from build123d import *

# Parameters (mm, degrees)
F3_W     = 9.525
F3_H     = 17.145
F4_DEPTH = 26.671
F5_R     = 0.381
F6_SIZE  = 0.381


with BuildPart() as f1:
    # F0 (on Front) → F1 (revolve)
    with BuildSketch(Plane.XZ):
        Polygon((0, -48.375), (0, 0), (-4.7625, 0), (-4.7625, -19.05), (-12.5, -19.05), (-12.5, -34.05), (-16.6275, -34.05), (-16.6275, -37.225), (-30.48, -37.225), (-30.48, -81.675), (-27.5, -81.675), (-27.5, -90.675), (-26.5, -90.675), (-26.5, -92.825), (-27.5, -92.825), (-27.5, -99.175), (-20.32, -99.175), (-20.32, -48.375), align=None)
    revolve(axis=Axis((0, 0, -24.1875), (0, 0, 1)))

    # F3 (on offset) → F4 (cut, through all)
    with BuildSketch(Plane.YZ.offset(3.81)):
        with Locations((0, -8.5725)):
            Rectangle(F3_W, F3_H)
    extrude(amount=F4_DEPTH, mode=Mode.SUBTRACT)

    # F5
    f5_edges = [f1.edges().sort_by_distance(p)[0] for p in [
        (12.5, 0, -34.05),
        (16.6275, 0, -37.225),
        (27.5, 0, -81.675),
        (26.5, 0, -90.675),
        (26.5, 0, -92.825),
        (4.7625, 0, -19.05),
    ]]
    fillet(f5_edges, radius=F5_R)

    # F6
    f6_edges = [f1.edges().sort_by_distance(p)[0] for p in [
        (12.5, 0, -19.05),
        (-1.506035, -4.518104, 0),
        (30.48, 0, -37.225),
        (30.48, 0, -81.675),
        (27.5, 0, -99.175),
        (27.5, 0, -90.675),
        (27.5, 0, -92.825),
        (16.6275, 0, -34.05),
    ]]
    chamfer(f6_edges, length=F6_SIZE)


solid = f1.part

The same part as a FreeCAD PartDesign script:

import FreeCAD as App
import Part
import Sketcher
Q = App.Units.Quantity


def edges_at(feature, points):
    """Names of the edges that pass closest to the given points."""
    edges = feature.Shape.Edges
    near = lambda p: min(range(len(edges)), key=lambda i: edges[i].distToShape(Part.Vertex(*p))[0])
    return sorted({f"Edge{near(p) + 1}" for p in points})

doc = App.newDocument("Part")
body = doc.addObject("PartDesign::Body", "Body")

sketch1 = body.newObject("Sketcher::SketchObject", "Sketch")
sketch1.AttachmentSupport = (doc.getObject("XZ_Plane"), [""])
sketch1.MapMode = "FlatFace"
sketch1.addGeometry([
    Part.LineSegment(App.Vector(0, -48.375, 0), App.Vector(0, 0, 0)),
    Part.LineSegment(App.Vector(0, 0, 0), App.Vector(-4.7625, 0, 0)),
    Part.LineSegment(App.Vector(-4.7625, 0, 0), App.Vector(-4.7625, -19.05, 0)),
    Part.LineSegment(App.Vector(-4.7625, -19.05, 0), App.Vector(-12.5, -19.05, 0)),
    Part.LineSegment(App.Vector(-12.5, -19.05, 0), App.Vector(-12.5, -34.05, 0)),
    Part.LineSegment(App.Vector(-12.5, -34.05, 0), App.Vector(-16.6275, -34.05, 0)),
    Part.LineSegment(App.Vector(-16.6275, -34.05, 0), App.Vector(-16.6275, -37.225, 0)),
    Part.LineSegment(App.Vector(-16.6275, -37.225, 0), App.Vector(-30.48, -37.225, 0)),
    Part.LineSegment(App.Vector(-30.48, -37.225, 0), App.Vector(-30.48, -81.675, 0)),
    Part.LineSegment(App.Vector(-30.48, -81.675, 0), App.Vector(-27.5, -81.675, 0)),
    Part.LineSegment(App.Vector(-27.5, -81.675, 0), App.Vector(-27.5, -90.675, 0)),
    Part.LineSegment(App.Vector(-27.5, -90.675, 0), App.Vector(-26.5, -90.675, 0)),
    Part.LineSegment(App.Vector(-26.5, -90.675, 0), App.Vector(-26.5, -92.825, 0)),
    Part.LineSegment(App.Vector(-26.5, -92.825, 0), App.Vector(-27.5, -92.825, 0)),
    Part.LineSegment(App.Vector(-27.5, -92.825, 0), App.Vector(-27.5, -99.175, 0)),
    Part.LineSegment(App.Vector(-27.5, -99.175, 0), App.Vector(-20.32, -99.175, 0)),
    Part.LineSegment(App.Vector(-20.32, -99.175, 0), App.Vector(-20.32, -48.375, 0)),
    Part.LineSegment(App.Vector(-20.32, -48.375, 0), App.Vector(0, -48.375, 0)),
], False)
sketch1.addConstraint([
    Sketcher.Constraint("Coincident", 0, 2, 1, 1),
    Sketcher.Constraint("Coincident", 1, 2, 2, 1),
    Sketcher.Constraint("Coincident", 2, 2, 3, 1),
    Sketcher.Constraint("Coincident", 3, 2, 4, 1),
    Sketcher.Constraint("Coincident", 4, 2, 5, 1),
    Sketcher.Constraint("Coincident", 5, 2, 6, 1),
    Sketcher.Constraint("Coincident", 6, 2, 7, 1),
    Sketcher.Constraint("Coincident", 7, 2, 8, 1),
    Sketcher.Constraint("Coincident", 8, 2, 9, 1),
    Sketcher.Constraint("Coincident", 9, 2, 10, 1),
    Sketcher.Constraint("Coincident", 10, 2, 11, 1),
    Sketcher.Constraint("Coincident", 11, 2, 12, 1),
    Sketcher.Constraint("Coincident", 12, 2, 13, 1),
    Sketcher.Constraint("Coincident", 13, 2, 14, 1),
    Sketcher.Constraint("Coincident", 14, 2, 15, 1),
    Sketcher.Constraint("Coincident", 15, 2, 16, 1),
    Sketcher.Constraint("Coincident", 16, 2, 17, 1),
    Sketcher.Constraint("Coincident", 17, 2, 0, 1),
    Sketcher.Constraint("Vertical", 0),
    Sketcher.Constraint("Horizontal", 1),
    Sketcher.Constraint("Vertical", 2),
    Sketcher.Constraint("Horizontal", 3),
    Sketcher.Constraint("Vertical", 4),
    Sketcher.Constraint("Horizontal", 5),
    Sketcher.Constraint("Vertical", 6),
    Sketcher.Constraint("Horizontal", 7),
    Sketcher.Constraint("Vertical", 8),
    Sketcher.Constraint("Horizontal", 9),
    Sketcher.Constraint("Vertical", 10),
    Sketcher.Constraint("Horizontal", 11),
    Sketcher.Constraint("Vertical", 12),
    Sketcher.Constraint("Horizontal", 13),
    Sketcher.Constraint("Vertical", 14),
    Sketcher.Constraint("Horizontal", 15),
    Sketcher.Constraint("Vertical", 16),
    Sketcher.Constraint("Horizontal", 17),
    Sketcher.Constraint("Coincident", 0, 2, -1, 1),
    Sketcher.Constraint("Vertical", 10, 2, 13, 2),
    Sketcher.Constraint("DistanceY", 16, 1, 16, 2, Q("2 in")),
    Sketcher.Constraint("DistanceX", 17, 1, 17, 2, Q("0.8 in")),
    Sketcher.Constraint("DistanceY", 2, 2, 2, 1, Q("0.75 in")),
    Sketcher.Constraint("DistanceY", 8, 2, 8, 1, Q("1.75 in")),
    Sketcher.Constraint("DistanceY", 14, 2, 14, 1, Q("0.25 in")),
    Sketcher.Constraint("DistanceX", 7, 2, -1, 1, Q("1.2 in")),
    Sketcher.Constraint("DistanceX", 1, 2, 1, 1, Q("0.1875 in")),
    Sketcher.Constraint("DistanceY", 6, 2, 6, 1, Q("0.125 in")),
    Sketcher.Constraint("DistanceX", 5, 2, 5, 1, Q("0.1625 in")),
    Sketcher.Constraint("DistanceX", 3, 2, 3, 1, 7.7375),
    Sketcher.Constraint("DistanceX", 9, 1, 9, 2, 2.98),
    Sketcher.Constraint("DistanceX", 11, 1, 11, 2, 1.0),
    Sketcher.Constraint("DistanceY", 0, 1, 0, 2, 48.375),
    Sketcher.Constraint("DistanceY", 4, 2, 4, 1, 15.0),
    Sketcher.Constraint("DistanceY", 10, 2, 10, 1, 9.0),
])
revolution = body.newObject("PartDesign::Revolution", "Revolution")
revolution.Profile = sketch1
revolution.ReferenceAxis = (sketch1, ["V_Axis"])
revolution.Angle = 360

sketch2 = body.newObject("Sketcher::SketchObject", "Sketch001")
sketch2.AttachmentSupport = (doc.getObject("YZ_Plane"), [""])
sketch2.MapMode = "FlatFace"
sketch2.AttachmentOffset = App.Placement(App.Vector(0, 0, 0.15 * 25.4), App.Rotation())
sketch2.addGeometry([
    Part.LineSegment(App.Vector(-4.7625, 0, 0), App.Vector(-4.7625, -17.145, 0)),
    Part.LineSegment(App.Vector(-4.7625, -17.145, 0), App.Vector(4.7625, -17.145, 0)),
    Part.LineSegment(App.Vector(4.7625, -17.145, 0), App.Vector(4.7625, 0, 0)),
    Part.LineSegment(App.Vector(4.7625, 0, 0), App.Vector(-4.7625, 0, 0)),
], False)
sketch2.addConstraint([
    Sketcher.Constraint("Coincident", 0, 2, 1, 1),
    Sketcher.Constraint("Coincident", 1, 2, 2, 1),
    Sketcher.Constraint("Coincident", 2, 2, 3, 1),
    Sketcher.Constraint("Coincident", 3, 2, 0, 1),
    Sketcher.Constraint("Vertical", 0),
    Sketcher.Constraint("Horizontal", 1),
    Sketcher.Constraint("Vertical", 2),
    Sketcher.Constraint("Horizontal", 3),
    Sketcher.Constraint("Symmetric", 2, 2, 3, 2, -1, 1),
    Sketcher.Constraint("DistanceX", 1, 1, 1, 2, Q("0.375 in")),
    Sketcher.Constraint("DistanceY", 0, 2, 0, 1, Q("0.675 in")),
])
pocket1 = body.newObject("PartDesign::Pocket", "Pocket")
pocket1.Profile = sketch2
pocket1.Type = "ThroughAll"
pocket1.Reversed = True
doc.recompute()

fillet = body.newObject("PartDesign::Fillet", "Fillet")
fillet.Base = (pocket1, edges_at(pocket1, [
    (12.5, 0, -34.05),
    (16.628, 0, -37.225),
    (27.5, 0, -81.675),
    (26.5, 0, -90.675),
    (26.5, 0, -92.825),
    (4.763, 0, -19.05),
]))
fillet.Radius = Q("0.015 in")
doc.recompute()

chamfer = body.newObject("PartDesign::Chamfer", "Chamfer")
chamfer.Base = (fillet, edges_at(fillet, [
    (12.5, 0, -19.05),
    (-1.506, -4.518, 0),
    (30.48, 0, -37.225),
    (30.48, 0, -81.675),
    (27.5, 0, -99.175),
    (27.5, 0, -90.675),
    (27.5, 0, -92.825),
    (16.628, 0, -34.05),
]))
chamfer.Size = Q("0.015 in")

doc.recompute()
